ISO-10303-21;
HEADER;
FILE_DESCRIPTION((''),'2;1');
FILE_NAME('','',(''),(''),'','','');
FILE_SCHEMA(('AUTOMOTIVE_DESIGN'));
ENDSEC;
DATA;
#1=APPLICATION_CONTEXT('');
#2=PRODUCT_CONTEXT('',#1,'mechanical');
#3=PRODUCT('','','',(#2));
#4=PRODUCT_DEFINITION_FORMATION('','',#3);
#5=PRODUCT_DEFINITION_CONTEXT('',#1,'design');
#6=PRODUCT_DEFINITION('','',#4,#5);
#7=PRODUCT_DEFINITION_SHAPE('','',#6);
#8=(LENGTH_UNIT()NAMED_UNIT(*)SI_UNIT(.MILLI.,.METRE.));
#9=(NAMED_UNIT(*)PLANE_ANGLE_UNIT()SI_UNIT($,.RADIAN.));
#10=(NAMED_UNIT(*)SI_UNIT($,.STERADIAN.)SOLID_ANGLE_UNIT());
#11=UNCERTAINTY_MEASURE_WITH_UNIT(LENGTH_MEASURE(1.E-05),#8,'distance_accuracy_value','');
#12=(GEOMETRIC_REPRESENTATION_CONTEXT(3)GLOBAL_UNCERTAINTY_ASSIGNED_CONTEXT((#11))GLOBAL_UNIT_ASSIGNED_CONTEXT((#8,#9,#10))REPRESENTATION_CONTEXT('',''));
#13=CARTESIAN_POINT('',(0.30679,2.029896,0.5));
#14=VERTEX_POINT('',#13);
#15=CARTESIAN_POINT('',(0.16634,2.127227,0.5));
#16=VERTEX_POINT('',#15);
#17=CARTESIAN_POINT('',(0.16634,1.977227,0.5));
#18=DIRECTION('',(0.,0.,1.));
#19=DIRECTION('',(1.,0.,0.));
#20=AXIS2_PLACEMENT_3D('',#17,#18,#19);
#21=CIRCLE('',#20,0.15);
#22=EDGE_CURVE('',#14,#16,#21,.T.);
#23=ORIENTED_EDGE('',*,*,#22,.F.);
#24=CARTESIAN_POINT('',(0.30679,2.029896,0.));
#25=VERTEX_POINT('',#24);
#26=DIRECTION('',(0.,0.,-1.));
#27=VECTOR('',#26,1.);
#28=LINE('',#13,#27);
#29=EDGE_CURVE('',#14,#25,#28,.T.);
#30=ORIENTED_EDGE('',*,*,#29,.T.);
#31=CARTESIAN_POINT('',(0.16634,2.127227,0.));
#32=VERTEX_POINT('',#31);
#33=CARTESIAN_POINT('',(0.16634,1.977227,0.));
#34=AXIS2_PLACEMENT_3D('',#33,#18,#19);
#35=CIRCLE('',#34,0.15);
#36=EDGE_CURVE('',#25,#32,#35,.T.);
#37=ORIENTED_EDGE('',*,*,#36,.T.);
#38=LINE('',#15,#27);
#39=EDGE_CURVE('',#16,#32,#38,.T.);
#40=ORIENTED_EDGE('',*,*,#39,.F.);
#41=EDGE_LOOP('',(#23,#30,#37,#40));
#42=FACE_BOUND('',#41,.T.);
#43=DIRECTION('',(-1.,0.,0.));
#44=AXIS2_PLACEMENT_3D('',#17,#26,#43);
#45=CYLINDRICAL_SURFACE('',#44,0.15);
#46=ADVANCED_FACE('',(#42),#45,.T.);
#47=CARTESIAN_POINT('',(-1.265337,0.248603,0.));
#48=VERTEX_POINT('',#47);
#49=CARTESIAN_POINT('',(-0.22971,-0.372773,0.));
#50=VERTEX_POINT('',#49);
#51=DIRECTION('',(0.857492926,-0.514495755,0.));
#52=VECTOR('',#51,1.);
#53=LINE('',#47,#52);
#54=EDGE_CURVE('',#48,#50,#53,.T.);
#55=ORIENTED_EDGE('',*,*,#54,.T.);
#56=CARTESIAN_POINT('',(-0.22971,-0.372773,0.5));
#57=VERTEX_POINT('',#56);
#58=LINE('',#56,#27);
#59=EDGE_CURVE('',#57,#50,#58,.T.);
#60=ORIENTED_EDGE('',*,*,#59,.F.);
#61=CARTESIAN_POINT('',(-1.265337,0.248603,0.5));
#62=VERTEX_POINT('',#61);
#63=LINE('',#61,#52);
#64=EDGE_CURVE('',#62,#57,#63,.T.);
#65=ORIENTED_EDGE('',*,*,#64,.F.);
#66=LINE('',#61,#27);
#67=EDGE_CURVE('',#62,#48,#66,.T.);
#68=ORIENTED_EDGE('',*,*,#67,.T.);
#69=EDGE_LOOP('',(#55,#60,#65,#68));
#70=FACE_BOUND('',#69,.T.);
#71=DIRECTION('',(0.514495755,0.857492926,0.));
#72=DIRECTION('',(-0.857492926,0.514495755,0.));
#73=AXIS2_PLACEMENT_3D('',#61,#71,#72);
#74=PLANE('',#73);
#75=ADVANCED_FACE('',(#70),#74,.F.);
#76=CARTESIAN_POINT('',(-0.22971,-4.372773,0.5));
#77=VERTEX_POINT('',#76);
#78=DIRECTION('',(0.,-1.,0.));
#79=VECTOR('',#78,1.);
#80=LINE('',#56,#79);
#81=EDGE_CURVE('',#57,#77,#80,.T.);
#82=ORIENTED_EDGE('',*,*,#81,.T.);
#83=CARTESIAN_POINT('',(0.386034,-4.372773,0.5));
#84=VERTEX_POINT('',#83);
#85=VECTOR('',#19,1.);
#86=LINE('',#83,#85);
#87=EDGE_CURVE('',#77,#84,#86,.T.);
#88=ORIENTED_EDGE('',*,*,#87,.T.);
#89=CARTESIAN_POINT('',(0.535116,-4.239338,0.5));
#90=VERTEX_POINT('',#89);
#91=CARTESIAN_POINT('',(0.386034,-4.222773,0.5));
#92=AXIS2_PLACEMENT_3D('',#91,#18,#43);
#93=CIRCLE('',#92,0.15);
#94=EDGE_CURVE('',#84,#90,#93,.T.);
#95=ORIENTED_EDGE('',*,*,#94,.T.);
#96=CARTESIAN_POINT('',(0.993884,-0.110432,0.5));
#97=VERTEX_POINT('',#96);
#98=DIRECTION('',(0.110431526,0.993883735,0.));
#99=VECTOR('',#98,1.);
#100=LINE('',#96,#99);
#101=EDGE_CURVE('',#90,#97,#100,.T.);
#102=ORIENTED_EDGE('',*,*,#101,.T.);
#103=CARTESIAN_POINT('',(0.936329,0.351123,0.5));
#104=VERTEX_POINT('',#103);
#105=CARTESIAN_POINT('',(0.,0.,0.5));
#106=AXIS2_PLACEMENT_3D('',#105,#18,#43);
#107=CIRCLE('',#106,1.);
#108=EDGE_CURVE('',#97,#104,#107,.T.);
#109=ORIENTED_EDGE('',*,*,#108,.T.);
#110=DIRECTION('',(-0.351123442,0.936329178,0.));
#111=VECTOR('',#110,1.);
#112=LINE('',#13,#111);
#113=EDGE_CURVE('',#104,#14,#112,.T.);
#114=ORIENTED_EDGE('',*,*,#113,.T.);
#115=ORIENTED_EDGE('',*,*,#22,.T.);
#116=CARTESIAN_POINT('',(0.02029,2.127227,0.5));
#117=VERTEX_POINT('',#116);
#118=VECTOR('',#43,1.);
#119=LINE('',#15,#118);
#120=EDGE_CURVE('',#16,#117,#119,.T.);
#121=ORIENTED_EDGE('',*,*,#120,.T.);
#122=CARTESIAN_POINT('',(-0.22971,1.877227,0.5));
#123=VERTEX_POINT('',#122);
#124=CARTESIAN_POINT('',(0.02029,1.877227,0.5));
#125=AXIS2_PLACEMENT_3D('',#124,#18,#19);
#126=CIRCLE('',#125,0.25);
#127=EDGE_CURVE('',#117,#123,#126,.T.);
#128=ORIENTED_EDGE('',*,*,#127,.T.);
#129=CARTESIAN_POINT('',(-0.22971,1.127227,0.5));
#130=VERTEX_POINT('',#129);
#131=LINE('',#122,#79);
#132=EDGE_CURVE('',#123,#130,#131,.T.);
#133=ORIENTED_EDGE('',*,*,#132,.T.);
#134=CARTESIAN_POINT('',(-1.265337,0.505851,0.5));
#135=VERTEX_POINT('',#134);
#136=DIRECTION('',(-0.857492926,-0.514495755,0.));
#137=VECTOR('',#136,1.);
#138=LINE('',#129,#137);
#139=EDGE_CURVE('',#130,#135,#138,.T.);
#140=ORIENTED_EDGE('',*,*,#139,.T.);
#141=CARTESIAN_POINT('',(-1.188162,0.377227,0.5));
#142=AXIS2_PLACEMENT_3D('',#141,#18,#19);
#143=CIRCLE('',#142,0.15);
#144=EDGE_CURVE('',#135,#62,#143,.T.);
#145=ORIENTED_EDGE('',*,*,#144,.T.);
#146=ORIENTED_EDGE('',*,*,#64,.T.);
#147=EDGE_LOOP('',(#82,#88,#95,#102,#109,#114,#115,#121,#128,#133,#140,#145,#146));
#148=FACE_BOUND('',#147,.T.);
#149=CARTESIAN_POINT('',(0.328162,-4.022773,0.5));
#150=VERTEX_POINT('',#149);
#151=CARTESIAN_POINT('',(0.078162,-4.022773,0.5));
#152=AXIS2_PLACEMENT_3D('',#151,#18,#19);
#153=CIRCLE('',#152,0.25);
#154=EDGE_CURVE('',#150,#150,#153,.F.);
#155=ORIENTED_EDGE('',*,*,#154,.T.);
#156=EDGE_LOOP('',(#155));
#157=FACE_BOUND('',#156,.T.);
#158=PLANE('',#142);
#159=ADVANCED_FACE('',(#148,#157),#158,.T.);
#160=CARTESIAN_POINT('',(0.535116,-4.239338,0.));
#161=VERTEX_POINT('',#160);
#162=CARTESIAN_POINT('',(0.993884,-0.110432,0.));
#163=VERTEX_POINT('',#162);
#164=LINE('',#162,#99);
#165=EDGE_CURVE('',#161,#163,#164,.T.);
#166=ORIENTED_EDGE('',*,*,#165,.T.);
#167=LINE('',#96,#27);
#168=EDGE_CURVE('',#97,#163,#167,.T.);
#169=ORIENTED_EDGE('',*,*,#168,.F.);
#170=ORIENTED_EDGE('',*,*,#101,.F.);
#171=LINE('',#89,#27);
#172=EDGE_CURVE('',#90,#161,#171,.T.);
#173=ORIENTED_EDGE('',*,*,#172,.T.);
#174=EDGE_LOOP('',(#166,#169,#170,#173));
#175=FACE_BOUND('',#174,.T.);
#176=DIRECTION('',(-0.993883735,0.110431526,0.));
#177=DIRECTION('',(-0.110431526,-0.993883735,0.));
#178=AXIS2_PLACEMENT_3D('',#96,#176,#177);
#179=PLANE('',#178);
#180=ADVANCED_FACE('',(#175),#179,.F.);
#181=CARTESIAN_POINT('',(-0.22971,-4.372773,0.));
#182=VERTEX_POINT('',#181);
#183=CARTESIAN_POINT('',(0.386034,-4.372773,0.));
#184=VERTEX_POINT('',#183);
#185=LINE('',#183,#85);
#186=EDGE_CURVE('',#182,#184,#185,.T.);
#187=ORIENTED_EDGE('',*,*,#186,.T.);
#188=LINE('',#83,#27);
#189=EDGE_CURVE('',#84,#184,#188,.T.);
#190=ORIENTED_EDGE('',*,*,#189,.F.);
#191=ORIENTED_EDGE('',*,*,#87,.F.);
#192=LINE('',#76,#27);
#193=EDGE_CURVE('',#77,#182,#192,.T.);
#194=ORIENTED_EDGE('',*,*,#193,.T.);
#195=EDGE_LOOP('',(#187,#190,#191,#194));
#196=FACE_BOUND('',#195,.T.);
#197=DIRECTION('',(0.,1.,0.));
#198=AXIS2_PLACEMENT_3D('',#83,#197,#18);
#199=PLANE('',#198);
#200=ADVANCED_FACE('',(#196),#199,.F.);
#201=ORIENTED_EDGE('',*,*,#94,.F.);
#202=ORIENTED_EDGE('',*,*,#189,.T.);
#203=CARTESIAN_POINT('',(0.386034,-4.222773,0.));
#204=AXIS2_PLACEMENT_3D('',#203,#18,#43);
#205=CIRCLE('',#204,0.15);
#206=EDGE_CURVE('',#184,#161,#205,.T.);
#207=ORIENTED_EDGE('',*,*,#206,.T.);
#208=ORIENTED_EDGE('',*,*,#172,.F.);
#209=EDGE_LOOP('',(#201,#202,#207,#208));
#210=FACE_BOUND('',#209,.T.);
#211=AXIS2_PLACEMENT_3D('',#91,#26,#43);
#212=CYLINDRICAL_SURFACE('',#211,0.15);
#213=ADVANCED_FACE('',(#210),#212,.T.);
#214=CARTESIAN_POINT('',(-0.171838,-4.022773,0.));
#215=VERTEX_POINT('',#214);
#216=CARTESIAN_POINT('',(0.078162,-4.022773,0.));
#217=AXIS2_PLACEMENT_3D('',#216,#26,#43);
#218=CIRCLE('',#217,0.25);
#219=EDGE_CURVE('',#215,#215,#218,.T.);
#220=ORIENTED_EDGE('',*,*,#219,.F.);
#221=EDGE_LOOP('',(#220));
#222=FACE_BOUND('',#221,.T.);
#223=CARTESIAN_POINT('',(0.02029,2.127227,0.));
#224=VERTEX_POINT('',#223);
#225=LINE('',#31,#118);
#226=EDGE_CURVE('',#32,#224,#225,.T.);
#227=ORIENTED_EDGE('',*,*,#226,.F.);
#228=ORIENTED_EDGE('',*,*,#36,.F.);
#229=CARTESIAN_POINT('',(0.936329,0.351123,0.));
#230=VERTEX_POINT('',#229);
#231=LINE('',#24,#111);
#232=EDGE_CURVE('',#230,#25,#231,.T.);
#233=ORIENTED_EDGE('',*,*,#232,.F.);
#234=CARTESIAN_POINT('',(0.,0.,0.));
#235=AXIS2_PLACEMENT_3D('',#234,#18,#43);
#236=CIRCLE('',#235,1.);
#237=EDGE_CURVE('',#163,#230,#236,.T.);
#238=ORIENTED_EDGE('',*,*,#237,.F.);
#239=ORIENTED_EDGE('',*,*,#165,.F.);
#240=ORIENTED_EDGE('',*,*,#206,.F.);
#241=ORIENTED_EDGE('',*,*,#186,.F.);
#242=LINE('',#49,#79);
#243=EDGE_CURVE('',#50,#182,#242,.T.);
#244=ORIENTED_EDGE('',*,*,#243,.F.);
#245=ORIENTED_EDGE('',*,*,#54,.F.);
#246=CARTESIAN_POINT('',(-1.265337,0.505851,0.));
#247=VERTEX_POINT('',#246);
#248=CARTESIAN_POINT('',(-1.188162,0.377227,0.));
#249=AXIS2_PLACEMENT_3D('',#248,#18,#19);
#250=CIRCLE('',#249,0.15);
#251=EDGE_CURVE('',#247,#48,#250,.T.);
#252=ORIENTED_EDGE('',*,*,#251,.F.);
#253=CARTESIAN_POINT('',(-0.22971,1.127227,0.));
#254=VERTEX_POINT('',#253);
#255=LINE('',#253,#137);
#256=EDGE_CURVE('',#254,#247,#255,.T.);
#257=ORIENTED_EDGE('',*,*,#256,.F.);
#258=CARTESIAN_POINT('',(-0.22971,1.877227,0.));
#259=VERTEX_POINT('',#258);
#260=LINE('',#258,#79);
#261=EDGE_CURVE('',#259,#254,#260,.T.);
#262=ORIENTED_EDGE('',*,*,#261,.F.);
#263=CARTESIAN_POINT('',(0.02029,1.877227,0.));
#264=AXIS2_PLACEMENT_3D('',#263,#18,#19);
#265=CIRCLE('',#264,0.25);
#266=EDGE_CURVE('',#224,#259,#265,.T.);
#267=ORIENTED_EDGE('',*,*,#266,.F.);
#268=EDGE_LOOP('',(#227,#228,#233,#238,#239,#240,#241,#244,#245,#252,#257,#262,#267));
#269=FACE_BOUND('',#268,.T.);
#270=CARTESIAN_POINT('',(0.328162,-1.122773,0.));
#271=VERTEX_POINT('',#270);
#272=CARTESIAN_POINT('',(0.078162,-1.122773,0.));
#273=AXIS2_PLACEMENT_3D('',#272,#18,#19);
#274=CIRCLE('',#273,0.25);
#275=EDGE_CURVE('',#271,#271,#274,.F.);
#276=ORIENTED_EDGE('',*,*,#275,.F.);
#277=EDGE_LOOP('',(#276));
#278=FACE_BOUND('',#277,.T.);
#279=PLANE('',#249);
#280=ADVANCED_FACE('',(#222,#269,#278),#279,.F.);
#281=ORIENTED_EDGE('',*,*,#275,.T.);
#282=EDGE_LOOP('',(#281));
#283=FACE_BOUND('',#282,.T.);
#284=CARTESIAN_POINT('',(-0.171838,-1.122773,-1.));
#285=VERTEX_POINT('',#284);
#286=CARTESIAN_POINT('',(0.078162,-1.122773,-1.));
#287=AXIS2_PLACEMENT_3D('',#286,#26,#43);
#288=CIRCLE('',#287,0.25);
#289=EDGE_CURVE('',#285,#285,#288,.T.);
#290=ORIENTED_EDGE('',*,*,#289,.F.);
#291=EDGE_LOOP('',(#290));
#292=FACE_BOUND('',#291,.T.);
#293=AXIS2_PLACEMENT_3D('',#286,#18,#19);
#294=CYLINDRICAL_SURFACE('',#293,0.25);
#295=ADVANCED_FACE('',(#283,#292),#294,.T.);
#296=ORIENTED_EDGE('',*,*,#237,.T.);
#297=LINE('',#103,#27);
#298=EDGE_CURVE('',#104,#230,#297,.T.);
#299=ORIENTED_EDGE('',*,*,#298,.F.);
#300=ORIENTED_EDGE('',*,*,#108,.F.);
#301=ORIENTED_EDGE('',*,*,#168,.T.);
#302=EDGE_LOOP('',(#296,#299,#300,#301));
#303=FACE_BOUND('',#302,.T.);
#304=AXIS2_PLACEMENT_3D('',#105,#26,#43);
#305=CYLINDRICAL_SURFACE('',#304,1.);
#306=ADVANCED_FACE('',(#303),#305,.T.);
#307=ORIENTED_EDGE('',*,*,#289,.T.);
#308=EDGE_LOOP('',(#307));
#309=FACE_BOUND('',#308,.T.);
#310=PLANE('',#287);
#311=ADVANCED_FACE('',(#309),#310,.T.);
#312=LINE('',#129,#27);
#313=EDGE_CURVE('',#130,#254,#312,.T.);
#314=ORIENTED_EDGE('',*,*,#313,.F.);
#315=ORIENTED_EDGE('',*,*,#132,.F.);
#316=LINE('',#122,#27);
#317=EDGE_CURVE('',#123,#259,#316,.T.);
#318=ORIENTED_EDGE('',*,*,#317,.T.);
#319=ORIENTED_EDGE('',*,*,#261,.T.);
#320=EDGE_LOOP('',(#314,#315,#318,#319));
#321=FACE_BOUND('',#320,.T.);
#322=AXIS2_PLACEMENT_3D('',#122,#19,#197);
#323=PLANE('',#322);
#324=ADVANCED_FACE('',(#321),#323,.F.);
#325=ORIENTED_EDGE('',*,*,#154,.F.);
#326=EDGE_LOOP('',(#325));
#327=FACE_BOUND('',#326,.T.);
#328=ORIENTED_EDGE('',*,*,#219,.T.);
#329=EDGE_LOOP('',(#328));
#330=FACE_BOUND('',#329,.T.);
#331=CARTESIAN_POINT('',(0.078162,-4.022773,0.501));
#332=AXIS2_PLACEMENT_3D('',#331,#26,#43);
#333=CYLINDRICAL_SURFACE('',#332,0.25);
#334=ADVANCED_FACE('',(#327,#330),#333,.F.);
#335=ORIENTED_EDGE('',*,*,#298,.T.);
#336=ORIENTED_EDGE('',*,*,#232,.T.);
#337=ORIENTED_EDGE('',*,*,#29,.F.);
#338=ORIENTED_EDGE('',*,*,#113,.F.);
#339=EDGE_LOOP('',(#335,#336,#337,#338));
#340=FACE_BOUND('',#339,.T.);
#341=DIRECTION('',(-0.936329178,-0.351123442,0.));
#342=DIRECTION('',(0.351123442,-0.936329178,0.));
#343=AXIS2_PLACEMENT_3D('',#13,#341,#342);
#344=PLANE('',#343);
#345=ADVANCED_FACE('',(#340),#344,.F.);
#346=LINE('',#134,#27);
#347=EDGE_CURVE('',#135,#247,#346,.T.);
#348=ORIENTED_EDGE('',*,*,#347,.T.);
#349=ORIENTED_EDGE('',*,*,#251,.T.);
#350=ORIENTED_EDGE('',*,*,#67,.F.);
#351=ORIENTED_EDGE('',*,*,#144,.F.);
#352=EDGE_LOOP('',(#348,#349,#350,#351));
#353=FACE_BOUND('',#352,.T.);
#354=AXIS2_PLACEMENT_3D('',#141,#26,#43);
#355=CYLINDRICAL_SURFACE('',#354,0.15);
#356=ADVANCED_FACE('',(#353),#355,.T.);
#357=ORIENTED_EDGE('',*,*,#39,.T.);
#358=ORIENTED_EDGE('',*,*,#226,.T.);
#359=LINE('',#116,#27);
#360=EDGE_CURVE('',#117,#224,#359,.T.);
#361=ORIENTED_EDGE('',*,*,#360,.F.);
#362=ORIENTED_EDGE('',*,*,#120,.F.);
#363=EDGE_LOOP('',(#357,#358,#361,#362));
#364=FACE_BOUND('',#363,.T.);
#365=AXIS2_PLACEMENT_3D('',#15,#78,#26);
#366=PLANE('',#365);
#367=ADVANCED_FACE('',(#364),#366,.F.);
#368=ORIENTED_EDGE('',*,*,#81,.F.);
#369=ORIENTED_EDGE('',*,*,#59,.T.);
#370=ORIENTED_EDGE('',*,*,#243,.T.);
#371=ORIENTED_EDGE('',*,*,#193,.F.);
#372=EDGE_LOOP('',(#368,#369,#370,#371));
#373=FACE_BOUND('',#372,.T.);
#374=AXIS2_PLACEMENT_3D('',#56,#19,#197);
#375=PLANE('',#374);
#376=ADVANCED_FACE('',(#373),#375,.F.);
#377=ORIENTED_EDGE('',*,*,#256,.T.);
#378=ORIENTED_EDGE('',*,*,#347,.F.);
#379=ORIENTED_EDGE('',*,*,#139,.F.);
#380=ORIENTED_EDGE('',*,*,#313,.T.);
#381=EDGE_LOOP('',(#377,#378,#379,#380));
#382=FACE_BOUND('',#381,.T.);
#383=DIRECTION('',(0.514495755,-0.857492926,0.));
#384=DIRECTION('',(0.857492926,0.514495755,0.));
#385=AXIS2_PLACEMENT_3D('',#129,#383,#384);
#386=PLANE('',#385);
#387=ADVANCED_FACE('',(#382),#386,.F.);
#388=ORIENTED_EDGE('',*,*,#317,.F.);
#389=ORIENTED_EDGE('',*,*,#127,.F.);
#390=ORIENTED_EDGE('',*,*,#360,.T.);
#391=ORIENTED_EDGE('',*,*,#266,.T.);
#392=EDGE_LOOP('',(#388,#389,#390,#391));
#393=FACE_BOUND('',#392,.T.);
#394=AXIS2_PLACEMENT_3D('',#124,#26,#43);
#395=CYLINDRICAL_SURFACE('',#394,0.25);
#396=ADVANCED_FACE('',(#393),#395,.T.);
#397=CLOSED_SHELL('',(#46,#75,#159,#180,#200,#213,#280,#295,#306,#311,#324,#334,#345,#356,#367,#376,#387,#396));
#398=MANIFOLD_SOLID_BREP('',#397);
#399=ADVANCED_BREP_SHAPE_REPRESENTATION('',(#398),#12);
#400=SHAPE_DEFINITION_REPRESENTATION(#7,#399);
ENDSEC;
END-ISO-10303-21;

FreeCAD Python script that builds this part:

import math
import FreeCAD as App
import Part
import Sketcher
Q = App.Units.Quantity

doc = App.newDocument("Part")
params = doc.addObject("Spreadsheet::Sheet", "Params")
for row, (alias, value) in enumerate([
    ("sketch1_radius", "1 mm"),
    ("sketch1_height", "4 mm"),
    ("sketch1_radius2", "0.15 mm"),
    ("sketch1_radius3", "0.25 mm"),
    ("sketch1_radius4", "0.15 mm"),
    ("pad1_length", "0.5 mm"),
    ("sketch2_diameter", "0.5 mm"),
    ("pad2_length", "1 mm"),
    ("sketch3_diameter", "0.5 mm"),
], start=1):
    params.set(f"A{row}", alias)
    params.set(f"B{row}", "=" + value)
    params.setAlias(f"B{row}", alias)

body = doc.addObject("PartDesign::Body", "Body")

# Sketch on XY plane
sketch1 = body.newObject("Sketcher::SketchObject", "Sketch")
sketch1.AttachmentSupport = (doc.getObject("XY_Plane"), [""])
sketch1.MapMode = "FlatFace"
sketch1.addGeometry([
    Part.LineSegment(App.Vector(0.936329, 0.351123, 0), App.Vector(0.30679, 2.029896, 0)),  # 0
    Part.ArcOfCircle(Part.Circle(App.Vector(0.16634, 1.977227, 0), App.Vector(0, 0, 1), 0.15), math.radians(20.556045), math.radians(90)),  # 1
    Part.LineSegment(App.Vector(0.16634, 2.127227, 0), App.Vector(0.02029, 2.127227, 0)),  # 2
    Part.ArcOfCircle(Part.Circle(App.Vector(0.02029, 1.877227, 0), App.Vector(0, 0, 1), 0.25), math.radians(90), math.radians(180)),  # 3
    Part.LineSegment(App.Vector(-0.22971, 1.877227, 0), App.Vector(-0.22971, 1.127227, 0)),  # 4
    Part.LineSegment(App.Vector(-0.22971, 1.127227, 0), App.Vector(-1.265337, 0.505851, 0)),  # 5
    Part.ArcOfCircle(Part.Circle(App.Vector(-1.188162, 0.377227, 0), App.Vector(0, 0, 1), 0.15), math.radians(120.963756), math.radians(239.036244)),  # 6
    Part.LineSegment(App.Vector(-1.265337, 0.248603, 0), App.Vector(-0.22971, -0.372773, 0)),  # 7
    Part.LineSegment(App.Vector(-0.22971, -0.372773, 0), App.Vector(-0.22971, -4.372773, 0)),  # 8
    Part.LineSegment(App.Vector(-0.22971, -4.372773, 0), App.Vector(0.386034, -4.372773, 0)),  # 9
    Part.ArcOfCircle(Part.Circle(App.Vector(0.386034, -4.222773, 0), App.Vector(0, 0, 1), 0.15), math.radians(-89.999999), math.radians(-6.340192)),  # 10
    Part.LineSegment(App.Vector(0.535116, -4.239338, 0), App.Vector(0.993884, -0.110432, 0)),  # 11
    Part.ArcOfCircle(Part.Circle(App.Vector(0, 0, 0), App.Vector(0, 0, 1), 1), math.radians(-6.340191), math.radians(20.556045)),  # 12
], False)
sketch1.addConstraint([
    Sketcher.Constraint("Coincident", 0, 2, 1, 1),
    Sketcher.Constraint("Coincident", 1, 2, 2, 1),
    Sketcher.Constraint("Coincident", 2, 2, 3, 1),
    Sketcher.Constraint("Coincident", 3, 2, 4, 1),
    Sketcher.Constraint("Coincident", 4, 2, 5, 1),
    Sketcher.Constraint("Coincident", 5, 2, 6, 1),
    Sketcher.Constraint("Coincident", 6, 2, 7, 1),
    Sketcher.Constraint("Coincident", 7, 2, 8, 1),
    Sketcher.Constraint("Coincident", 8, 2, 9, 1),
    Sketcher.Constraint("Coincident", 9, 2, 10, 1),
    Sketcher.Constraint("Coincident", 10, 2, 11, 1),
    Sketcher.Constraint("Coincident", 11, 2, 12, 1),
    Sketcher.Constraint("Coincident", 12, 2, 0, 1),
    Sketcher.Constraint("Horizontal", 2),
    Sketcher.Constraint("Vertical", 4),
    Sketcher.Constraint("Vertical", 8),
    Sketcher.Constraint("Horizontal", 9),
    Sketcher.Constraint("Coincident", 12, 3, -1, 1),
    Sketcher.Constraint("Radius", 12, Q("1 mm")),
    Sketcher.Constraint("DistanceY", 8, 2, 8, 1, Q("4 mm")),
    Sketcher.Constraint("Radius", 1, Q("0.15 mm")),
    Sketcher.Constraint("Radius", 3, Q("0.25 mm")),
    Sketcher.Constraint("Radius", 6, Q("0.15 mm")),
    Sketcher.Constraint("Radius", 10, Q("0.15 mm")),
    Sketcher.Constraint("DistanceY", 4, 2, 2, 2, Q("1 mm")),
    Sketcher.Constraint("DistanceY", 4, 2, 4, 1, Q("0.75 mm")),
    Sketcher.Constraint("DistanceY", 6, 3, 3, 3, Q("1.5 mm")),
    Sketcher.Constraint("DistanceY", 10, 3, 6, 3, Q("4.6 mm")),
    Sketcher.Constraint("DistanceX", 3, 2, 2, 2, Q("0.25 mm")),
    Sketcher.Constraint("DistanceX", 2, 2, 2, 1, Q("0.14605 mm")),
    Sketcher.Constraint("DistanceX", 3, 3, 0, 2, Q("0.286499 mm")),
    Sketcher.Constraint("Distance", 0, Q("1.79293 mm")),
    Sketcher.Constraint("DistanceX", 9, 1, 9, 2, Q("0.615744 mm")),
    Sketcher.Constraint("DistanceX", -1, 1, 1, 3, Q("0.16634 mm")),
    Sketcher.Constraint("DistanceX", -1, 1, 3, 3, Q("0.02029 mm")),
    Sketcher.Constraint("DistanceY", -1, 1, 5, 2, Q("0.505851 mm")),
    Sketcher.Constraint("DistanceX", 7, 2, -1, 1, Q("0.22971 mm")),
    Sketcher.Constraint("DistanceY", 11, 2, -1, 1, Q("0.110432 mm")),
    Sketcher.Constraint("DistanceX", -1, 1, 12, 2, Q("0.936329 mm")),
    Sketcher.Constraint("DistanceX", 6, 3, 0, 2, Q("1.494952 mm")),
    Sketcher.Constraint("DistanceX", 6, 2, 9, 2, Q("1.65137 mm")),
    Sketcher.Constraint("Distance", 11, Q("4.154315 mm")),
    Sketcher.Constraint("DistanceX", -1, 1, 10, 3, Q("0.386034 mm")),
])
sketch1.setExpression("Constraints[18]", "Params.sketch1_radius")
sketch1.setExpression("Constraints[19]", "Params.sketch1_height")
sketch1.setExpression("Constraints[20]", "Params.sketch1_radius2")
sketch1.setExpression("Constraints[21]", "Params.sketch1_radius3")
sketch1.setExpression("Constraints[22]", "Params.sketch1_radius4")
pad1 = body.newObject("PartDesign::Pad", "Pad")
pad1.Profile = sketch1
pad1.setExpression("Length", "Params.pad1_length")

# Sketch on XY plane
sketch2 = body.newObject("Sketcher::SketchObject", "Sketch001")
sketch2.AttachmentSupport = (doc.getObject("XY_Plane"), [""])
sketch2.MapMode = "FlatFace"
sketch2.addGeometry(Part.Circle(App.Vector(0.08, -1.12, 0), App.Vector(0, 0, 1), 0.25), False)
sketch2.addConstraint([
    Sketcher.Constraint("Diameter", 0, Q("0.5 mm")),
    Sketcher.Constraint("DistanceX", -1, 1, 0, 3, Q("0.078162 mm")),
    Sketcher.Constraint("DistanceY", 0, 3, -1, 1, Q("1.122773 mm")),
])
sketch2.setExpression("Constraints[0]", "Params.sketch2_diameter")
pad2 = body.newObject("PartDesign::Pad", "Pad001")
pad2.Profile = sketch2
pad2.setExpression("Length", "Params.pad2_length")
pad2.Reversed = True

# Sketch on XY plane
sketch3 = body.newObject("Sketcher::SketchObject", "Sketch002")
sketch3.AttachmentSupport = (doc.getObject("XY_Plane"), [""])
sketch3.MapMode = "FlatFace"
sketch3.addGeometry(Part.Circle(App.Vector(0.08, -4.02, 0), App.Vector(0, 0, 1), 0.25), False)
sketch3.addConstraint([
    Sketcher.Constraint("Diameter", 0, Q("0.5 mm")),
    Sketcher.Constraint("DistanceX", -1, 1, 0, 3, Q("0.078162 mm")),
    Sketcher.Constraint("DistanceY", 0, 3, -1, 1, Q("4.022773 mm")),
])
sketch3.setExpression("Constraints[0]", "Params.sketch3_diameter")
pocket1 = body.newObject("PartDesign::Pocket", "Pocket")
pocket1.Profile = sketch3
pocket1.Type = "UpToFirst"
pocket1.Reversed = True

doc.recompute()
